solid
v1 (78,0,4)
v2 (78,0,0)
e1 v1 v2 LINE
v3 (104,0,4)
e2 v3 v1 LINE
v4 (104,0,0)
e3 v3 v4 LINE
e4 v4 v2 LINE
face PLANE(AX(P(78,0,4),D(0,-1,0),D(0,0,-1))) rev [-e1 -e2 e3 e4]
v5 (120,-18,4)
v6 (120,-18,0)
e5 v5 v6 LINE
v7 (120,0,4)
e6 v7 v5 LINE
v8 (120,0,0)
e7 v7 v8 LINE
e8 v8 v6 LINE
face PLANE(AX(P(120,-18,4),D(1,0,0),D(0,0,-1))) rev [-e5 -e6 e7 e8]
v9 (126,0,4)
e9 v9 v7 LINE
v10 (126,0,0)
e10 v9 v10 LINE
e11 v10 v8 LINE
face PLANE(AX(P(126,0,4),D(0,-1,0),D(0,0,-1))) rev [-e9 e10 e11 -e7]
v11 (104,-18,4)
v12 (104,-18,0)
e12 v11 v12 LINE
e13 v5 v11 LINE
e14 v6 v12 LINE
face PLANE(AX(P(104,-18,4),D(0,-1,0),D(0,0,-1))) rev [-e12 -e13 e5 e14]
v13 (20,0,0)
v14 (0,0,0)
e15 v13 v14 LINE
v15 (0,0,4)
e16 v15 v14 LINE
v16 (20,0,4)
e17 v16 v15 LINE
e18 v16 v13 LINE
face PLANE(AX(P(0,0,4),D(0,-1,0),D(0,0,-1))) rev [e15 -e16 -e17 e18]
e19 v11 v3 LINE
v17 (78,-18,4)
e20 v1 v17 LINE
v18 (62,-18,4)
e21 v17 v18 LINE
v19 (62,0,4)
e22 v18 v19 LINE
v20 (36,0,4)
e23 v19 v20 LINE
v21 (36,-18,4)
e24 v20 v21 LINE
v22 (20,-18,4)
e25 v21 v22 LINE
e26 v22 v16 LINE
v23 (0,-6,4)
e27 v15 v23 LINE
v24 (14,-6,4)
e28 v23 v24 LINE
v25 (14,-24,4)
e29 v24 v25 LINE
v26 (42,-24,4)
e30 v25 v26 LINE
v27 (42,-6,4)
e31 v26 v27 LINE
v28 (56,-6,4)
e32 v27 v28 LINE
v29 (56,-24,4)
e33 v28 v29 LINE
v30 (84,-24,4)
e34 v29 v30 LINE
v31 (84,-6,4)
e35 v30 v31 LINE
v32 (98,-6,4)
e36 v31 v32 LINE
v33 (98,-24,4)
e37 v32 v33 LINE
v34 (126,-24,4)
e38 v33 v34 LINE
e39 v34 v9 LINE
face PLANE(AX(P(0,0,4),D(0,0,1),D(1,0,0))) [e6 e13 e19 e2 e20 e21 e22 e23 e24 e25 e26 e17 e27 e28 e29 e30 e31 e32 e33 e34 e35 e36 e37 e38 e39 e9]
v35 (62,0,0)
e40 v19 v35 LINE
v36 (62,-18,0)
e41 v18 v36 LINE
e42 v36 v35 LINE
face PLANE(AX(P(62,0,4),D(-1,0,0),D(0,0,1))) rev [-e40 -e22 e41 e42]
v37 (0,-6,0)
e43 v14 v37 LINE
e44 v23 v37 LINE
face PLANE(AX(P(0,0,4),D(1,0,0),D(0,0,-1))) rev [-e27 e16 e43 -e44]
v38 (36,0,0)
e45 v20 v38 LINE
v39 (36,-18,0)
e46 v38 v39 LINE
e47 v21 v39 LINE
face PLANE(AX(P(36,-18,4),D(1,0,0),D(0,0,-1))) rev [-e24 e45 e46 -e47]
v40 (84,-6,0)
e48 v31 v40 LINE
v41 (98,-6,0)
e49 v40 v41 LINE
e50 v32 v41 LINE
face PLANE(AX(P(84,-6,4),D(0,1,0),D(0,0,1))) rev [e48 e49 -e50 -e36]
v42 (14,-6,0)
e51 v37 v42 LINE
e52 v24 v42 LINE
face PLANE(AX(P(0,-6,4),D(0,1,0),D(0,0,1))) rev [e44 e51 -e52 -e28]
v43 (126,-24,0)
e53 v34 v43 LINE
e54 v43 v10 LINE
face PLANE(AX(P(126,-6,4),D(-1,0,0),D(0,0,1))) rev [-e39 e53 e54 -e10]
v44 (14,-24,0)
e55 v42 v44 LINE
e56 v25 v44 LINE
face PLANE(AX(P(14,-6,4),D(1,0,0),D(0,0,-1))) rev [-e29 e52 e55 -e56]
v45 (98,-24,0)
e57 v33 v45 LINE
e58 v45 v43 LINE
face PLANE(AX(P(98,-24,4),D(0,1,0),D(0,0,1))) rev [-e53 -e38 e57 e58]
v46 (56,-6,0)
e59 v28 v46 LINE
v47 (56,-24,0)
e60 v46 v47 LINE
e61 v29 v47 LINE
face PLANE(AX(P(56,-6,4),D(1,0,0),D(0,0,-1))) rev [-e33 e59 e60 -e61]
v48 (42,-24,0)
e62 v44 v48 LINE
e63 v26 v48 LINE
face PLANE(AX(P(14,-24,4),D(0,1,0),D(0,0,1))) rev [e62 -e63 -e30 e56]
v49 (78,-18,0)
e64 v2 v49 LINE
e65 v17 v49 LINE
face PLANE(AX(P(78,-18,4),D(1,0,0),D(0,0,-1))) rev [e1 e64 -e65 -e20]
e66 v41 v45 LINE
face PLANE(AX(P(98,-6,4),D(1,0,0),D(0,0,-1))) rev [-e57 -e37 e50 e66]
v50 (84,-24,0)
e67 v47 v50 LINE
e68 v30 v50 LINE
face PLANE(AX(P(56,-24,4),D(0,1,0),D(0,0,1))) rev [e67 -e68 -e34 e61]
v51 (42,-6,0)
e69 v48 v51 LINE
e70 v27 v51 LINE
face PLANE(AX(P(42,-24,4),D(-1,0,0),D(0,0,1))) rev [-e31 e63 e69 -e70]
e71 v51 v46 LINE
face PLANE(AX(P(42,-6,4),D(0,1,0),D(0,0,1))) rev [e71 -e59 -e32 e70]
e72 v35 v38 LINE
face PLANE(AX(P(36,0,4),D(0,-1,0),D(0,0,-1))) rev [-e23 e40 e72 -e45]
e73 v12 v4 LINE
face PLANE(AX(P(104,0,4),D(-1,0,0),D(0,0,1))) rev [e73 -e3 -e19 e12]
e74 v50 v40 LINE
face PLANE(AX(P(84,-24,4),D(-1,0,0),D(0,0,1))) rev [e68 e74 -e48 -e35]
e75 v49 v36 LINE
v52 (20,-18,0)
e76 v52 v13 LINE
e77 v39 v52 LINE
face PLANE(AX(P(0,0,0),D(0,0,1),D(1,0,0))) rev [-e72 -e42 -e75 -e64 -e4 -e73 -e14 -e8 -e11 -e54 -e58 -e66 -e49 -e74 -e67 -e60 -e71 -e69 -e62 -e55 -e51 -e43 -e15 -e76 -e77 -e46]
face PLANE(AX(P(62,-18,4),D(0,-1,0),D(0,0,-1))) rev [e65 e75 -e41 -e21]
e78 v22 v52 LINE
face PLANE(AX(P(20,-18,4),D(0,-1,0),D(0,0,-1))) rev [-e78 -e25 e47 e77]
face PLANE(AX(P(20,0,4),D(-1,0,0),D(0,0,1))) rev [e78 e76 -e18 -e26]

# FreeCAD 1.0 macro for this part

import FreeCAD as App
import Part
import Sketcher
from FreeCAD import Vector

doc = App.newDocument("Part")
body = doc.addObject("PartDesign::Body", "Body")

# Sketch on XY plane
sketch1 = doc.addObject("Sketcher::SketchObject", "Sketch")
body.addObject(sketch1)
sketch1.AttachmentSupport = (doc.XY_Plane, [""])
sketch1.MapMode = "FlatFace"
sketch1.addGeometry([
    Part.LineSegment(Vector(20, 0, 0), Vector(0, 0, 0)),  # 0
    Part.LineSegment(Vector(0, 0, 0), Vector(0, -6, 0)),  # 1
    Part.LineSegment(Vector(0, -6, 0), Vector(14, -6, 0)),  # 2
    Part.LineSegment(Vector(14, -6, 0), Vector(14, -24, 0)),  # 3
    Part.LineSegment(Vector(14, -24, 0), Vector(42, -24, 0)),  # 4
    Part.LineSegment(Vector(42, -24, 0), Vector(42, -6, 0)),  # 5
    Part.LineSegment(Vector(42, -6, 0), Vector(56, -6, 0)),  # 6
    Part.LineSegment(Vector(56, -6, 0), Vector(56, -24, 0)),  # 7
    Part.LineSegment(Vector(56, -24, 0), Vector(84, -24, 0)),  # 8
    Part.LineSegment(Vector(84, -24, 0), Vector(84, -6, 0)),  # 9
    Part.LineSegment(Vector(84, -6, 0), Vector(98, -6, 0)),  # 10
    Part.LineSegment(Vector(98, -6, 0), Vector(98, -24, 0)),  # 11
    Part.LineSegment(Vector(98, -24, 0), Vector(126, -24, 0)),  # 12
    Part.LineSegment(Vector(126, -24, 0), Vector(126, 0, 0)),  # 13
    Part.LineSegment(Vector(126, 0, 0), Vector(120, 0, 0)),  # 14
    Part.LineSegment(Vector(120, 0, 0), Vector(120, -18, 0)),  # 15
    Part.LineSegment(Vector(120, -18, 0), Vector(104, -18, 0)),  # 16
    Part.LineSegment(Vector(104, -18, 0), Vector(104, 0, 0)),  # 17
    Part.LineSegment(Vector(104, 0, 0), Vector(78, 0, 0)),  # 18
    Part.LineSegment(Vector(78, 0, 0), Vector(78, -18, 0)),  # 19
    Part.LineSegment(Vector(78, -18, 0), Vector(62, -18, 0)),  # 20
    Part.LineSegment(Vector(62, -18, 0), Vector(62, 0, 0)),  # 21
    Part.LineSegment(Vector(62, 0, 0), Vector(36, 0, 0)),  # 22
    Part.LineSegment(Vector(36, 0, 0), Vector(36, -18, 0)),  # 23
    Part.LineSegment(Vector(36, -18, 0), Vector(20, -18, 0)),  # 24
    Part.LineSegment(Vector(20, -18, 0), Vector(20, 0, 0)),  # 25
], False)
sketch1.addConstraint([
    Sketcher.Constraint("Coincident", 0, 2, 1, 1),
    Sketcher.Constraint("Coincident", 1, 2, 2, 1),
    Sketcher.Constraint("Coincident", 2, 2, 3, 1),
    Sketcher.Constraint("Coincident", 3, 2, 4, 1),
    Sketcher.Constraint("Coincident", 4, 2, 5, 1),
    Sketcher.Constraint("Coincident", 5, 2, 6, 1),
    Sketcher.Constraint("Coincident", 6, 2, 7, 1),
    Sketcher.Constraint("Coincident", 7, 2, 8, 1),
    Sketcher.Constraint("Coincident", 8, 2, 9, 1),
    Sketcher.Constraint("Coincident", 9, 2, 10, 1),
    Sketcher.Constraint("Coincident", 10, 2, 11, 1),
    Sketcher.Constraint("Coincident", 11, 2, 12, 1),
    Sketcher.Constraint("Coincident", 12, 2, 13, 1),
    Sketcher.Constraint("Coincident", 13, 2, 14, 1),
    Sketcher.Constraint("Coincident", 14, 2, 15, 1),
    Sketcher.Constraint("Coincident", 15, 2, 16, 1),
    Sketcher.Constraint("Coincident", 16, 2, 17, 1),
    Sketcher.Constraint("Coincident", 17, 2, 18, 1),
    Sketcher.Constraint("Coincident", 18, 2, 19, 1),
    Sketcher.Constraint("Coincident", 19, 2, 20, 1),
    Sketcher.Constraint("Coincident", 20, 2, 21, 1),
    Sketcher.Constraint("Coincident", 21, 2, 22, 1),
    Sketcher.Constraint("Coincident", 22, 2, 23, 1),
    Sketcher.Constraint("Coincident", 23, 2, 24, 1),
    Sketcher.Constraint("Coincident", 24, 2, 25, 1),
    Sketcher.Constraint("Coincident", 25, 2, 0, 1),
    Sketcher.Constraint("Horizontal", 0),
    Sketcher.Constraint("Vertical", 1),
    Sketcher.Constraint("Horizontal", 2),
    Sketcher.Constraint("Vertical", 3),
    Sketcher.Constraint("Horizontal", 4),
    Sketcher.Constraint("Vertical", 5),
    Sketcher.Constraint("Horizontal", 6),
    Sketcher.Constraint("Vertical", 7),
    Sketcher.Constraint("Horizontal", 8),
    Sketcher.Constraint("Vertical", 9),
    Sketcher.Constraint("Horizontal", 10),
    Sketcher.Constraint("Vertical", 11),
    Sketcher.Constraint("Horizontal", 12),
    Sketcher.Constraint("Vertical", 13),
    Sketcher.Constraint("Horizontal", 14),
    Sketcher.Constraint("Vertical", 15),
    Sketcher.Constraint("Horizontal", 16),
    Sketcher.Constraint("Vertical", 17),
    Sketcher.Constraint("Horizontal", 18),
    Sketcher.Constraint("Vertical", 19),
    Sketcher.Constraint("Horizontal", 20),
    Sketcher.Constraint("Vertical", 21),
    Sketcher.Constraint("Horizontal", 22),
    Sketcher.Constraint("Vertical", 23),
    Sketcher.Constraint("Horizontal", 24),
    Sketcher.Constraint("Vertical", 25),
    Sketcher.Constraint("Coincident", 0, 2, -1, 1),
    Sketcher.Constraint("PointOnObject", 13, 2, -1),
    Sketcher.Constraint("PointOnObject", 17, 2, -1),
    Sketcher.Constraint("PointOnObject", 21, 2, -1),
    Sketcher.Constraint("Horizontal", 2, 2, 5, 2),
    Sketcher.Constraint("Horizontal", 4, 2, 7, 2),
    Sketcher.Constraint("Horizontal", 6, 2, 9, 2),
    Sketcher.Constraint("Horizontal", 8, 2, 11, 2),
    Sketcher.Constraint("Horizontal", 16, 2, 19, 2),
    Sketcher.Constraint("Horizontal", 20, 2, 23, 2),
    Sketcher.Constraint("Equal", 2, 6),
    Sketcher.Constraint("Equal", 4, 8),
    Sketcher.Constraint("Equal", 6, 10),
    Sketcher.Constraint("Equal", 8, 12),
    Sketcher.Constraint("Equal", 16, 20),
    Sketcher.Constraint("Equal", 18, 22),
    Sketcher.Constraint("Equal", 20, 24),
    Sketcher.Constraint("Equal", 14, 1),
    Sketcher.Constraint("Equal", 11, 15),
    Sketcher.Constraint("DistanceX", 0, 2, 0, 1, 20.0),
    Sketcher.Constraint("DistanceX", 2, 1, 2, 2, 14.0),
    Sketcher.Constraint("DistanceX", 4, 1, 4, 2, 28.0),
    Sketcher.Constraint("DistanceX", 14, 2, 14, 1, 6.0),
    Sketcher.Constraint("DistanceX", 16, 2, 16, 1, 16.0),
    Sketcher.Constraint("DistanceY", 3, 2, 3, 1, 18.0),
])
pad1 = doc.addObject("PartDesign::Pad", "Pad")
body.addObject(pad1)
pad1.Profile = sketch1
pad1.Length = 4

doc.recompute()
